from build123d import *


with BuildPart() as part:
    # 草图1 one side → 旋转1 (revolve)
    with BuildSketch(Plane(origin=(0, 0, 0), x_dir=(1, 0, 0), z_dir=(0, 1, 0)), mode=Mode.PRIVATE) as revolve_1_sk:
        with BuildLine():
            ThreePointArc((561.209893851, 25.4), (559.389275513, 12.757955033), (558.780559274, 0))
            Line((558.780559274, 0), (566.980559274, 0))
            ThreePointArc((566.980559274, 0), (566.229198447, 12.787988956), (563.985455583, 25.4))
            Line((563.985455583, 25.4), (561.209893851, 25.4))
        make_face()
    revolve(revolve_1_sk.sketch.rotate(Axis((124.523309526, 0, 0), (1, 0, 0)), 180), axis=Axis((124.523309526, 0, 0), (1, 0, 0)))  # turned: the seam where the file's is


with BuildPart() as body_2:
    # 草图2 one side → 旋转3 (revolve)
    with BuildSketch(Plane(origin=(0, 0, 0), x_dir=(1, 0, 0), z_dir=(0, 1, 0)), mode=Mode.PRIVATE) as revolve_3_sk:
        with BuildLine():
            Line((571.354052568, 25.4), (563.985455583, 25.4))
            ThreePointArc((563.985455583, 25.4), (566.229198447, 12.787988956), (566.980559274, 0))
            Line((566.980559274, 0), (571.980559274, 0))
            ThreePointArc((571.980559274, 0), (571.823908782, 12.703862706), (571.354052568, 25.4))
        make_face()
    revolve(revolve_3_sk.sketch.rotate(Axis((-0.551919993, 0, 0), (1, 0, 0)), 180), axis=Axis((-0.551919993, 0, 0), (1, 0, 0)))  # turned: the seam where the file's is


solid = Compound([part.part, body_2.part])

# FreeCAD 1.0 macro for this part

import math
import FreeCAD as App
import Part
import Sketcher
from FreeCAD import Vector

doc = App.newDocument("Part")
params = doc.addObject("Spreadsheet::Sheet", "Params")
for row, (alias, value) in enumerate([
    ("sketch1_radius", "134 mm"),
    ("sketch1_radius2", "109.2 mm"),
    ("sketch1_width", "8.2 mm"),
    ("revolution_angle", "360 deg"),
    ("sketch2_radius", "109.2 mm"),
    ("sketch2_radius2", "515.200001 mm"),
    ("sketch2_width", "5 mm"),
    ("revolution2_angle", "360 deg"),
], start=1):
    params.set(f"A{row}", alias)
    params.set(f"B{row}", "=" + value)
    params.setAlias(f"B{row}", alias)

body = doc.addObject("PartDesign::Body", "Body")

# Sketch on XZ plane
sketch1 = body.newObject("Sketcher::SketchObject", "Sketch")
sketch1.AttachmentSupport = (doc.getObject("XZ_Plane"), [""])
sketch1.MapMode = "FlatFace"
sketch1.addGeometry(Part.ArcOfCircle(Part.Circle(Vector(692.8, 0, 0), Vector(0, 0, 1), 134), math.radians(180), math.radians(190.93)), False)
sketch1.addGeometry(Part.LineSegment(Vector(558.8, 0, 0), Vector(567, 0, 0)), False)
sketch1.addGeometry(Part.ArcOfCircle(Part.Circle(Vector(457.8, 0, 0), Vector(0, 0, 1), 109.2), math.radians(-13.45), math.radians(0)), False)
sketch1.addGeometry(Part.LineSegment(Vector(564, -25.4, 0), Vector(561.2, -25.4, 0)), False)
sketch1.addConstraint(Sketcher.Constraint("Coincident", 0, 1, 1, 1))
sketch1.addConstraint(Sketcher.Constraint("Coincident", 1, 2, 2, 2))
sketch1.addConstraint(Sketcher.Constraint("Coincident", 2, 1, 3, 1))
sketch1.addConstraint(Sketcher.Constraint("Coincident", 3, 2, 0, 2))
sketch1.addConstraint(Sketcher.Constraint("Horizontal", 1))
sketch1.addConstraint(Sketcher.Constraint("Horizontal", 3))
sketch1.addConstraint(Sketcher.Constraint("PointOnObject", 0, 3, -1))
sketch1.addConstraint(Sketcher.Constraint("PointOnObject", 2, 3, -1))
sketch1.addConstraint(Sketcher.Constraint("PointOnObject", 0, 1, -1))
sketch1.addConstraint(Sketcher.Constraint("Radius", 0, 134.0))
sketch1.addConstraint(Sketcher.Constraint("Radius", 2, 109.2))
sketch1.addConstraint(Sketcher.Constraint("DistanceX", 1, 1, 1, 2, 8.2))
sketch1.addConstraint(Sketcher.Constraint("DistanceY", 2, 1, -1, 1, 25.4))
sketch1.addConstraint(Sketcher.Constraint("DistanceX", -1, 1, 0, 3, 692.780559))
sketch1.setExpression("Constraints[9]", "Params.sketch1_radius")
sketch1.setExpression("Constraints[10]", "Params.sketch1_radius2")
sketch1.setExpression("Constraints[11]", "Params.sketch1_width")
revolution = body.newObject("PartDesign::Revolution", "Revolution")
revolution.Profile = sketch1
revolution.ReferenceAxis = (sketch1, ["H_Axis"])
revolution.setExpression("Angle", "Params.revolution_angle")
body2 = doc.addObject("PartDesign::Body", "Body001")

# Sketch on XZ plane
sketch2 = body2.newObject("Sketcher::SketchObject", "Sketch001")
sketch2.AttachmentSupport = (doc.getObject("XZ_Plane001"), [""])
sketch2.MapMode = "FlatFace"
sketch2.addGeometry(Part.LineSegment(Vector(571, -25, 0), Vector(564, -25, 0)), False)
sketch2.addGeometry(Part.ArcOfCircle(Part.Circle(Vector(458, 0, 0), Vector(0, 0, 1), 109), math.radians(-13.45), math.radians(0)), False)
sketch2.addGeometry(Part.LineSegment(Vector(567, 0, 0), Vector(572, 0, 0)), False)
sketch2.addGeometry(Part.ArcOfCircle(Part.Circle(Vector(57, 0, 0), Vector(0, 0, 1), 515), math.radians(-2.83), math.radians(0)), False)
sketch2.addConstraint(Sketcher.Constraint("Coincident", 0, 2, 1, 1))
sketch2.addConstraint(Sketcher.Constraint("Coincident", 1, 2, 2, 1))
sketch2.addConstraint(Sketcher.Constraint("Coincident", 2, 2, 3, 2))
sketch2.addConstraint(Sketcher.Constraint("Coincident", 3, 1, 0, 1))
sketch2.addConstraint(Sketcher.Constraint("Horizontal", 0))
sketch2.addConstraint(Sketcher.Constraint("Horizontal", 2))
sketch2.addConstraint(Sketcher.Constraint("PointOnObject", 1, 3, -1))
sketch2.addConstraint(Sketcher.Constraint("PointOnObject", 3, 3, -1))
sketch2.addConstraint(Sketcher.Constraint("PointOnObject", 1, 2, -1))
sketch2.addConstraint(Sketcher.Constraint("Radius", 1, 109.2))
sketch2.addConstraint(Sketcher.Constraint("Radius", 3, 515.200001))
sketch2.addConstraint(Sketcher.Constraint("DistanceX", 2, 1, 2, 2, 5.0))
sketch2.addConstraint(Sketcher.Constraint("DistanceY", 0, 2, -1, 1, 25.4))
sketch2.addConstraint(Sketcher.Constraint("DistanceX", -1, 1, 1, 3, 457.780559))
sketch2.setExpression("Constraints[9]", "Params.sketch2_radius")
sketch2.setExpression("Constraints[10]", "Params.sketch2_radius2")
sketch2.setExpression("Constraints[11]", "Params.sketch2_width")
revolution2 = body2.newObject("PartDesign::Revolution", "Revolution001")
revolution2.Profile = sketch2
revolution2.ReferenceAxis = (sketch2, ["H_Axis"])
revolution2.setExpression("Angle", "Params.revolution2_angle")

doc.recompute()
